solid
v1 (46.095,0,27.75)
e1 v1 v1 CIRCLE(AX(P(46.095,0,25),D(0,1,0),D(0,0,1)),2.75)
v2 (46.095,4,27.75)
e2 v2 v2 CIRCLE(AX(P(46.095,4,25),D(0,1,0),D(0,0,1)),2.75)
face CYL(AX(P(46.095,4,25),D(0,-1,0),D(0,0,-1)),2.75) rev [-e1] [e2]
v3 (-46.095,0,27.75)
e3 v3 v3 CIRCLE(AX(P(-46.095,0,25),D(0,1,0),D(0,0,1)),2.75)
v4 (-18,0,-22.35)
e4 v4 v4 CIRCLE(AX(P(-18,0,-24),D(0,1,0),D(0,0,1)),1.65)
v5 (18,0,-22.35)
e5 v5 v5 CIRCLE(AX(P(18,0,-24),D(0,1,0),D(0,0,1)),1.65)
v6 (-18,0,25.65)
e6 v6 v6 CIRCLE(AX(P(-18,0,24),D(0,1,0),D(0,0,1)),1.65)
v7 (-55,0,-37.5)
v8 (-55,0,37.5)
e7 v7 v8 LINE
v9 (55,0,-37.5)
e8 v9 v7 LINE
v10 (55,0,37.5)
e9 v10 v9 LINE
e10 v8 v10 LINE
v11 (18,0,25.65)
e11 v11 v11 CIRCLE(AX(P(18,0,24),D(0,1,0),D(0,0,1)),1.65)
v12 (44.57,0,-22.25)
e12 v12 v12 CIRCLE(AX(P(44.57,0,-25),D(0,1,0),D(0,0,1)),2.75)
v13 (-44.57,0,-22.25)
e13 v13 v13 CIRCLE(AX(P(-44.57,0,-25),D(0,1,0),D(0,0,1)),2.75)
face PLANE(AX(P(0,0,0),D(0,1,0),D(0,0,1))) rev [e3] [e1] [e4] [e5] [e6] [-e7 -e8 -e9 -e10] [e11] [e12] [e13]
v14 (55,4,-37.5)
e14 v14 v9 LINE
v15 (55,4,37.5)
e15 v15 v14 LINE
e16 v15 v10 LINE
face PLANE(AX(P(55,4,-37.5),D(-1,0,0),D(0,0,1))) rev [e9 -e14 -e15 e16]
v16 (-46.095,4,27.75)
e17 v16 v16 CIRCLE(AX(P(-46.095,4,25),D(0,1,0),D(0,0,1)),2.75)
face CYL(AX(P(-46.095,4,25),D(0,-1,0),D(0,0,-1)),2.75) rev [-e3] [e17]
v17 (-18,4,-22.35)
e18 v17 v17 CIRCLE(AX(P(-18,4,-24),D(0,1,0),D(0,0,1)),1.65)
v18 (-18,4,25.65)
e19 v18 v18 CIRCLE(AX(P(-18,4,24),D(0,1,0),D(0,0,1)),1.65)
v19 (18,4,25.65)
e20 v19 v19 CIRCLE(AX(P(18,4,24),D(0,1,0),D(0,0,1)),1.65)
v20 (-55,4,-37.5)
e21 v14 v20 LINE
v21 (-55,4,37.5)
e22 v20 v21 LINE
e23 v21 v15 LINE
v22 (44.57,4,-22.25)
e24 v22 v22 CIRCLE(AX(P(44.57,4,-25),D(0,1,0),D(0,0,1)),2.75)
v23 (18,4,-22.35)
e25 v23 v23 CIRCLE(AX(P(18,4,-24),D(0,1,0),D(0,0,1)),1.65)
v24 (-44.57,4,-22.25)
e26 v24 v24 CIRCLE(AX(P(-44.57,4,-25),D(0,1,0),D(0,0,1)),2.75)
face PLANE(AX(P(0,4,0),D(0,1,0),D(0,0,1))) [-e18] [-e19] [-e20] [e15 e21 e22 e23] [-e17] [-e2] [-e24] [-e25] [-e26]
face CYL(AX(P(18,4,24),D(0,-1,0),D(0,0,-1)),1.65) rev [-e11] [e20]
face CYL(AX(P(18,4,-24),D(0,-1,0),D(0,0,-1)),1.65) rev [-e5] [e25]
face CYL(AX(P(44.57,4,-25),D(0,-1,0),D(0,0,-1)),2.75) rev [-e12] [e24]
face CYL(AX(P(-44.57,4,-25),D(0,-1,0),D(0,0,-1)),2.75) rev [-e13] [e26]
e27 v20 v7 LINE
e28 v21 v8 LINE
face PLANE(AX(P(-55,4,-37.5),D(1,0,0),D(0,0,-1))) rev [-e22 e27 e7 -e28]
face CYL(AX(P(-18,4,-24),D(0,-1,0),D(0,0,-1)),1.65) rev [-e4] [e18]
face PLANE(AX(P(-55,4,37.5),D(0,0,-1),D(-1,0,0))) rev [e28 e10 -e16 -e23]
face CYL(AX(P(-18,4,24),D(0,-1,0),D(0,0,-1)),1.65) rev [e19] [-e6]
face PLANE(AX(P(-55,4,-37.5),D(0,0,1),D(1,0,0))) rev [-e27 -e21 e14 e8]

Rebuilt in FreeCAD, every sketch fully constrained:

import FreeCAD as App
import Part
import Sketcher
from FreeCAD import Vector

doc = App.newDocument("Part")
body = doc.addObject("PartDesign::Body", "Body")

# Sketch on XZ plane
sketch1 = body.newObject("Sketcher::SketchObject", "Sketch")
sketch1.AttachmentSupport = (doc.getObject("XZ_Plane"), [""])
sketch1.MapMode = "FlatFace"
sketch1.addGeometry([
    Part.LineSegment(Vector(-55, -37.5, 0), Vector(-55, 37.5, 0)),  # 0
    Part.LineSegment(Vector(-55, 37.5, 0), Vector(55, 37.5, 0)),  # 1
    Part.LineSegment(Vector(55, 37.5, 0), Vector(55, -37.5, 0)),  # 2
    Part.LineSegment(Vector(55, -37.5, 0), Vector(-55, -37.5, 0)),  # 3
    Part.Circle(Vector(-46.1, 25, 0), Vector(0, 0, 1), 2.8),  # 4
    Part.Circle(Vector(-18, 24, 0), Vector(0, 0, 1), 1.6),  # 5
    Part.Circle(Vector(18, 24, 0), Vector(0, 0, 1), 1.6),  # 6
    Part.Circle(Vector(46.1, 25, 0), Vector(0, 0, 1), 2.8),  # 7
    Part.Circle(Vector(-44.6, -25, 0), Vector(0, 0, 1), 2.8),  # 8
    Part.Circle(Vector(-18, -24, 0), Vector(0, 0, 1), 1.6),  # 9
    Part.Circle(Vector(18, -24, 0), Vector(0, 0, 1), 1.6),  # 10
    Part.Circle(Vector(44.6, -25, 0), Vector(0, 0, 1), 2.8),  # 11
], False)
sketch1.addConstraint([
    Sketcher.Constraint("Coincident", 0, 2, 1, 1),
    Sketcher.Constraint("Coincident", 1, 2, 2, 1),
    Sketcher.Constraint("Coincident", 2, 2, 3, 1),
    Sketcher.Constraint("Coincident", 3, 2, 0, 1),
    Sketcher.Constraint("Vertical", 0),
    Sketcher.Constraint("Horizontal", 1),
    Sketcher.Constraint("Vertical", 2),
    Sketcher.Constraint("Horizontal", 3),
    Sketcher.Constraint("Equal", 5, 6),
    Sketcher.Constraint("Equal", 4, 7),
    Sketcher.Constraint("Equal", 7, 8),
    Sketcher.Constraint("Equal", 6, 9),
    Sketcher.Constraint("Equal", 9, 10),
    Sketcher.Constraint("Equal", 8, 11),
    Sketcher.Constraint("Symmetric", 6, 3, 9, 3, -1, 1),
    Sketcher.Constraint("Symmetric", 5, 3, 10, 3, -1, 1),
    Sketcher.Constraint("Symmetric", 0, 2, 2, 2, -1, 1),
    Sketcher.Constraint("Symmetric", 5, 3, 6, 3, -2),
    Sketcher.Constraint("Symmetric", 4, 3, 7, 3, -2),
    Sketcher.Constraint("Symmetric", 8, 3, 11, 3, -2),
    Sketcher.Constraint("Diameter", 4, 5.5),
    Sketcher.Constraint("Diameter", 5, 3.3),
    Sketcher.Constraint("DistanceX", 1, 1, 1, 2, 110.0),
    Sketcher.Constraint("DistanceY", 0, 1, 0, 2, 75.0),
    Sketcher.Constraint("DistanceY", -1, 1, 4, 3, 25.0),
    Sketcher.Constraint("DistanceX", 5, 3, -1, 1, 18.0),
    Sketcher.Constraint("DistanceY", -1, 1, 5, 3, 24.0),
    Sketcher.Constraint("DistanceY", 8, 3, -1, 1, 25.0),
    Sketcher.Constraint("DistanceX", 8, 3, -1, 1, 44.57),
    Sketcher.Constraint("DistanceX", 4, 3, 7, 3, 92.19),
])
pad1 = body.newObject("PartDesign::Pad", "Pad")
pad1.Profile = sketch1
pad1.Length = 4
pad1.Reversed = True

doc.recompute()
